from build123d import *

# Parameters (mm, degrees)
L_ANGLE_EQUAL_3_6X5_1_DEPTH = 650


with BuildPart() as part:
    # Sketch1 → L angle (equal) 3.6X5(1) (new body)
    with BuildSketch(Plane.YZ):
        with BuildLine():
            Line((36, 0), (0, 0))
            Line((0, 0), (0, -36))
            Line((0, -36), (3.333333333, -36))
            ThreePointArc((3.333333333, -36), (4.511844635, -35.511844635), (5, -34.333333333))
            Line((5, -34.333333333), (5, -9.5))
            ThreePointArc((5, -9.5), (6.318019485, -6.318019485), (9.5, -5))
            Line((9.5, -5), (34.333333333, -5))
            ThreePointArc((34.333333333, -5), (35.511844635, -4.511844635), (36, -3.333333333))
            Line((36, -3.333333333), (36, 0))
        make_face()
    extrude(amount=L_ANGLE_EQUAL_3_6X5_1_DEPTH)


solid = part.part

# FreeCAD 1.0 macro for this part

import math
import FreeCAD as App
import Part
import Sketcher

V = App.Vector

doc = App.newDocument("Part")
body = doc.addObject("PartDesign::Body", "Body")

# Sketch on YZ plane
sketch1 = body.newObject("Sketcher::SketchObject", "Sketch")
sketch1.AttachmentSupport = (doc.getObject("YZ_Plane"), [""])
sketch1.MapMode = "FlatFace"
sketch1.addGeometry([
    Part.LineSegment(V(36, 0, 0), V(0, 0, 0)),  # 0
    Part.LineSegment(V(0, 0, 0), V(0, -36, 0)),  # 1
    Part.LineSegment(V(0, -36, 0), V(3.3, -36, 0)),  # 2
    Part.ArcOfCircle(Part.Circle(V(3.3, -34.3, 0), V(0, 0, 1), 1.7), math.radians(-90), math.radians(0)),  # 3
    Part.LineSegment(V(5, -34.3, 0), V(5, -9.5, 0)),  # 4
    Part.ArcOfCircle(Part.Circle(V(9.5, -9.5, 0), V(0, 0, 1), 4.5), math.radians(90), math.radians(180)),  # 5
    Part.LineSegment(V(9.5, -5, 0), V(34.3, -5, 0)),  # 6
    Part.ArcOfCircle(Part.Circle(V(34.3, -3.3, 0), V(0, 0, 1), 1.7), math.radians(-90), math.radians(0)),  # 7
    Part.LineSegment(V(36, -3.3, 0), V(36, 0, 0)),  # 8
], False)
sketch1.addConstraint([
    Sketcher.Constraint("Coincident", 0, 2, 1, 1),
    Sketcher.Constraint("Coincident", 1, 2, 2, 1),
    Sketcher.Constraint("Tangent", 2, 2, 3, 1),
    Sketcher.Constraint("Tangent", 3, 2, 4, 1),
    Sketcher.Constraint("Tangent", 4, 2, 5, 2),
    Sketcher.Constraint("Tangent", 5, 1, 6, 1),
    Sketcher.Constraint("Tangent", 6, 2, 7, 1),
    Sketcher.Constraint("Tangent", 7, 2, 8, 1),
    Sketcher.Constraint("Coincident", 8, 2, 0, 1),
    Sketcher.Constraint("Horizontal", 0),
    Sketcher.Constraint("Vertical", 1),
    Sketcher.Constraint("Horizontal", 2),
    Sketcher.Constraint("Vertical", 4),
    Sketcher.Constraint("Horizontal", 6),
    Sketcher.Constraint("Vertical", 8),
    Sketcher.Constraint("Coincident", 0, 2, -1, 1),
    Sketcher.Constraint("Equal", 3, 7),
    Sketcher.Constraint("Equal", 0, 1),
    Sketcher.Constraint("Equal", 6, 4),
    Sketcher.Constraint("Radius", 5, 4.5),
    Sketcher.Constraint("DistanceX", 0, 2, 0, 1, 36.0),
    Sketcher.Constraint("DistanceX", -1, 1, 3, 2, 5.0),
    Sketcher.Constraint("Radius", 3, 1.666667),
])
pad1 = body.newObject("PartDesign::Pad", "Pad")
pad1.Profile = sketch1
pad1.Length = 650

doc.recompute()
